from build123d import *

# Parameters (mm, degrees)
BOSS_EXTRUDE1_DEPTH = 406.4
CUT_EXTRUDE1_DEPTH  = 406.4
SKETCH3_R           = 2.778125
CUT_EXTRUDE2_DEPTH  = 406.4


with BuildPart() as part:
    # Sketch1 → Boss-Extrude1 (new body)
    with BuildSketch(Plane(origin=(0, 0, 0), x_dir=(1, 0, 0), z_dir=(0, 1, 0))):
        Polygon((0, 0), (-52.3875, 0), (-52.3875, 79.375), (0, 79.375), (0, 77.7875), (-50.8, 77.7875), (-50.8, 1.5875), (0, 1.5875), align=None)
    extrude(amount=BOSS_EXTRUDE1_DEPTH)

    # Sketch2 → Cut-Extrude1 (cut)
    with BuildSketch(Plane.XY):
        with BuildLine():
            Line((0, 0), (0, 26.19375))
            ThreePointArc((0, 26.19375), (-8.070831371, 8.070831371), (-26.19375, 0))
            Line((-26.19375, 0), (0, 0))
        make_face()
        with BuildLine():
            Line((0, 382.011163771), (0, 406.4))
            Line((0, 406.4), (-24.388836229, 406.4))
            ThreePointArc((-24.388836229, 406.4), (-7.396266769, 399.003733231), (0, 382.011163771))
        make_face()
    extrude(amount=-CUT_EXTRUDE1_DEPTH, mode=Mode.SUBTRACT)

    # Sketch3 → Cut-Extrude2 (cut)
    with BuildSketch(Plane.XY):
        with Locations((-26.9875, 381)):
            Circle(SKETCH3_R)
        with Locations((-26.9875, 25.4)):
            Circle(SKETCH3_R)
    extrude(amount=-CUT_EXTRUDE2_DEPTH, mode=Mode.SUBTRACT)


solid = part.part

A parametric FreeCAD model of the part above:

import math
import FreeCAD as App
import Part
import Sketcher
from FreeCAD import Vector
Q = App.Units.Quantity


def add_polygon(sketch, points):
    """Adds a closed chain of lines whose ends are joined by coincident constraints."""
    first, n = sketch.GeometryCount, len(points)
    for a, b in zip(points, points[1:] + points[:1]):
        sketch.addGeometry(Part.LineSegment(App.Vector(*a, 0), App.Vector(*b, 0)), False)
    for i in range(n):
        sketch.addConstraint(Sketcher.Constraint("Coincident", first + i, 2, first + (i + 1) % n, 1))

doc = App.newDocument("Part")
params = doc.addObject("Spreadsheet::Sheet", "Params")
for row, (alias, value) in enumerate([
    ("sketch1_width", "2 in"),
    ("sketch1_height", "3 in"),
    ("sketch1_width2", "2.0625 in"),
    ("sketch1_height2", "0.0625 in"),
    ("pad1_length", "16 in"),
    ("sketch2_width", "1.03125 in"),
    ("pocket1_length", "16 in"),
    ("sketch3_diameter", "0.21875 in"),
    ("pocket2_length", "16 in"),
], start=1):
    params.set(f"A{row}", alias)
    params.set(f"B{row}", "=" + value)
    params.setAlias(f"B{row}", alias)

body = doc.addObject("PartDesign::Body", "Body")

# Sketch on XZ plane
sketch1 = body.newObject("Sketcher::SketchObject", "Sketch")
sketch1.AttachmentSupport = (doc.getObject("XZ_Plane"), [""])
sketch1.MapMode = "FlatFace"
add_polygon(sketch1, [(-52.4, 0), (0, 0), (0, -1.6), (-50.8, -1.6), (-50.8, -77.8), (0, -77.8), (0, -79.4), (-52.4, -79.4)])  # lines 0-7
sketch1.addConstraint(Sketcher.Constraint("Horizontal", 0))
sketch1.addConstraint(Sketcher.Constraint("Vertical", 1))
sketch1.addConstraint(Sketcher.Constraint("Horizontal", 2))
sketch1.addConstraint(Sketcher.Constraint("Vertical", 3))
sketch1.addConstraint(Sketcher.Constraint("Horizontal", 4))
sketch1.addConstraint(Sketcher.Constraint("Vertical", 5))
sketch1.addConstraint(Sketcher.Constraint("Horizontal", 6))
sketch1.addConstraint(Sketcher.Constraint("Vertical", 7))
sketch1.addConstraint(Sketcher.Constraint("Coincident", 0, 2, -1, 1))
sketch1.addConstraint(Sketcher.Constraint("PointOnObject", 4, 2, -2))
sketch1.addConstraint(Sketcher.Constraint("Equal", 1, 5))
sketch1.addConstraint(Sketcher.Constraint("DistanceX", 2, 2, 2, 1, Q("2 in")))
sketch1.addConstraint(Sketcher.Constraint("DistanceY", 3, 2, 3, 1, Q("3 in")))
sketch1.addConstraint(Sketcher.Constraint("DistanceX", 0, 1, 0, 2, Q("2.0625 in")))
sketch1.addConstraint(Sketcher.Constraint("DistanceY", 1, 2, 1, 1, Q("0.0625 in")))
sketch1.setExpression("Constraints[19]", "Params.sketch1_width")
sketch1.setExpression("Constraints[20]", "Params.sketch1_height")
sketch1.setExpression("Constraints[21]", "Params.sketch1_width2")
sketch1.setExpression("Constraints[22]", "Params.sketch1_height2")
pad1 = body.newObject("PartDesign::Pad", "Pad")
pad1.Profile = sketch1
pad1.setExpression("Length", "Params.pad1_length")
pad1.Reversed = True

# Sketch on XY plane
sketch2 = body.newObject("Sketcher::SketchObject", "Sketch001")
sketch2.AttachmentSupport = (doc.getObject("XY_Plane"), [""])
sketch2.MapMode = "FlatFace"
sketch2.addGeometry(Part.LineSegment(Vector(0, 0, 0), Vector(0, 26, 0)), False)
sketch2.addGeometry(Part.ArcOfCircle(Part.Circle(Vector(-28, 28, 0), Vector(0, 0, 1), 28), math.radians(-87), math.radians(-3)), False)
sketch2.addGeometry(Part.LineSegment(Vector(-26, 0, 0), Vector(0, 0, 0)), False)
sketch2.addGeometry(Part.LineSegment(Vector(0, 382, 0), Vector(0, 406, 0)), False)
sketch2.addGeometry(Part.LineSegment(Vector(0, 406, 0), Vector(-24, 406, 0)), False)
sketch2.addGeometry(Part.ArcOfCircle(Part.Circle(Vector(-25, 381, 0), Vector(0, 0, 1), 25), math.radians(2), math.radians(88)), False)
sketch2.addConstraint(Sketcher.Constraint("Coincident", 0, 2, 1, 2))
sketch2.addConstraint(Sketcher.Constraint("Coincident", 1, 1, 2, 1))
sketch2.addConstraint(Sketcher.Constraint("Coincident", 2, 2, 0, 1))
sketch2.addConstraint(Sketcher.Constraint("Coincident", 3, 2, 4, 1))
sketch2.addConstraint(Sketcher.Constraint("Coincident", 4, 2, 5, 2))
sketch2.addConstraint(Sketcher.Constraint("Coincident", 5, 1, 3, 1))
sketch2.addConstraint(Sketcher.Constraint("Vertical", 0))
sketch2.addConstraint(Sketcher.Constraint("Horizontal", 2))
sketch2.addConstraint(Sketcher.Constraint("Vertical", 3))
sketch2.addConstraint(Sketcher.Constraint("Horizontal", 4))
sketch2.addConstraint(Sketcher.Constraint("Coincident", 2, 2, -1, 1))
sketch2.addConstraint(Sketcher.Constraint("PointOnObject", 3, 2, -2))
sketch2.addConstraint(Sketcher.Constraint("Equal", 2, 0))
sketch2.addConstraint(Sketcher.Constraint("Equal", 4, 3))
sketch2.addConstraint(Sketcher.Constraint("DistanceY", -1, 1, 3, 2, Q("16 in")))
sketch2.addConstraint(Sketcher.Constraint("DistanceX", 2, 1, 2, 2, Q("1.03125 in")))
sketch2.addConstraint(Sketcher.Constraint("Radius", 5, 25.307389))
sketch2.addConstraint(Sketcher.Constraint("Radius", 1, 27.685994))
sketch2.addConstraint(Sketcher.Constraint("DistanceX", 4, 2, 4, 1, 24.388836))
sketch2.setExpression("Constraints[15]", "Params.sketch2_width")
pocket1 = body.newObject("PartDesign::Pocket", "Pocket")
pocket1.Profile = sketch2
pocket1.setExpression("Length", "Params.pocket1_length")

# Sketch on XY plane
sketch3 = body.newObject("Sketcher::SketchObject", "Sketch002")
sketch3.AttachmentSupport = (doc.getObject("XY_Plane"), [""])
sketch3.MapMode = "FlatFace"
sketch3.addGeometry(Part.Circle(Vector(-27, 381, 0), Vector(0, 0, 1), 2.8), False)
sketch3.addGeometry(Part.Circle(Vector(-27, 25.4, 0), Vector(0, 0, 1), 2.8), False)
sketch3.addConstraint(Sketcher.Constraint("Equal", 0, 1))
sketch3.addConstraint(Sketcher.Constraint("Vertical", 0, 3, 1, 3))
sketch3.addConstraint(Sketcher.Constraint("Diameter", 0, Q("0.21875 in")))
sketch3.addConstraint(Sketcher.Constraint("DistanceY", -1, 1, 0, 3, Q("15 in")))
sketch3.addConstraint(Sketcher.Constraint("DistanceY", -1, 1, 1, 3, Q("1 in")))
sketch3.addConstraint(Sketcher.Constraint("DistanceX", 0, 3, -1, 1, Q("1.0625 in")))
sketch3.setExpression("Constraints[2]", "Params.sketch3_diameter")
pocket2 = body.newObject("PartDesign::Pocket", "Pocket001")
pocket2.Profile = sketch3
pocket2.setExpression("Length", "Params.pocket2_length")

doc.recompute()
